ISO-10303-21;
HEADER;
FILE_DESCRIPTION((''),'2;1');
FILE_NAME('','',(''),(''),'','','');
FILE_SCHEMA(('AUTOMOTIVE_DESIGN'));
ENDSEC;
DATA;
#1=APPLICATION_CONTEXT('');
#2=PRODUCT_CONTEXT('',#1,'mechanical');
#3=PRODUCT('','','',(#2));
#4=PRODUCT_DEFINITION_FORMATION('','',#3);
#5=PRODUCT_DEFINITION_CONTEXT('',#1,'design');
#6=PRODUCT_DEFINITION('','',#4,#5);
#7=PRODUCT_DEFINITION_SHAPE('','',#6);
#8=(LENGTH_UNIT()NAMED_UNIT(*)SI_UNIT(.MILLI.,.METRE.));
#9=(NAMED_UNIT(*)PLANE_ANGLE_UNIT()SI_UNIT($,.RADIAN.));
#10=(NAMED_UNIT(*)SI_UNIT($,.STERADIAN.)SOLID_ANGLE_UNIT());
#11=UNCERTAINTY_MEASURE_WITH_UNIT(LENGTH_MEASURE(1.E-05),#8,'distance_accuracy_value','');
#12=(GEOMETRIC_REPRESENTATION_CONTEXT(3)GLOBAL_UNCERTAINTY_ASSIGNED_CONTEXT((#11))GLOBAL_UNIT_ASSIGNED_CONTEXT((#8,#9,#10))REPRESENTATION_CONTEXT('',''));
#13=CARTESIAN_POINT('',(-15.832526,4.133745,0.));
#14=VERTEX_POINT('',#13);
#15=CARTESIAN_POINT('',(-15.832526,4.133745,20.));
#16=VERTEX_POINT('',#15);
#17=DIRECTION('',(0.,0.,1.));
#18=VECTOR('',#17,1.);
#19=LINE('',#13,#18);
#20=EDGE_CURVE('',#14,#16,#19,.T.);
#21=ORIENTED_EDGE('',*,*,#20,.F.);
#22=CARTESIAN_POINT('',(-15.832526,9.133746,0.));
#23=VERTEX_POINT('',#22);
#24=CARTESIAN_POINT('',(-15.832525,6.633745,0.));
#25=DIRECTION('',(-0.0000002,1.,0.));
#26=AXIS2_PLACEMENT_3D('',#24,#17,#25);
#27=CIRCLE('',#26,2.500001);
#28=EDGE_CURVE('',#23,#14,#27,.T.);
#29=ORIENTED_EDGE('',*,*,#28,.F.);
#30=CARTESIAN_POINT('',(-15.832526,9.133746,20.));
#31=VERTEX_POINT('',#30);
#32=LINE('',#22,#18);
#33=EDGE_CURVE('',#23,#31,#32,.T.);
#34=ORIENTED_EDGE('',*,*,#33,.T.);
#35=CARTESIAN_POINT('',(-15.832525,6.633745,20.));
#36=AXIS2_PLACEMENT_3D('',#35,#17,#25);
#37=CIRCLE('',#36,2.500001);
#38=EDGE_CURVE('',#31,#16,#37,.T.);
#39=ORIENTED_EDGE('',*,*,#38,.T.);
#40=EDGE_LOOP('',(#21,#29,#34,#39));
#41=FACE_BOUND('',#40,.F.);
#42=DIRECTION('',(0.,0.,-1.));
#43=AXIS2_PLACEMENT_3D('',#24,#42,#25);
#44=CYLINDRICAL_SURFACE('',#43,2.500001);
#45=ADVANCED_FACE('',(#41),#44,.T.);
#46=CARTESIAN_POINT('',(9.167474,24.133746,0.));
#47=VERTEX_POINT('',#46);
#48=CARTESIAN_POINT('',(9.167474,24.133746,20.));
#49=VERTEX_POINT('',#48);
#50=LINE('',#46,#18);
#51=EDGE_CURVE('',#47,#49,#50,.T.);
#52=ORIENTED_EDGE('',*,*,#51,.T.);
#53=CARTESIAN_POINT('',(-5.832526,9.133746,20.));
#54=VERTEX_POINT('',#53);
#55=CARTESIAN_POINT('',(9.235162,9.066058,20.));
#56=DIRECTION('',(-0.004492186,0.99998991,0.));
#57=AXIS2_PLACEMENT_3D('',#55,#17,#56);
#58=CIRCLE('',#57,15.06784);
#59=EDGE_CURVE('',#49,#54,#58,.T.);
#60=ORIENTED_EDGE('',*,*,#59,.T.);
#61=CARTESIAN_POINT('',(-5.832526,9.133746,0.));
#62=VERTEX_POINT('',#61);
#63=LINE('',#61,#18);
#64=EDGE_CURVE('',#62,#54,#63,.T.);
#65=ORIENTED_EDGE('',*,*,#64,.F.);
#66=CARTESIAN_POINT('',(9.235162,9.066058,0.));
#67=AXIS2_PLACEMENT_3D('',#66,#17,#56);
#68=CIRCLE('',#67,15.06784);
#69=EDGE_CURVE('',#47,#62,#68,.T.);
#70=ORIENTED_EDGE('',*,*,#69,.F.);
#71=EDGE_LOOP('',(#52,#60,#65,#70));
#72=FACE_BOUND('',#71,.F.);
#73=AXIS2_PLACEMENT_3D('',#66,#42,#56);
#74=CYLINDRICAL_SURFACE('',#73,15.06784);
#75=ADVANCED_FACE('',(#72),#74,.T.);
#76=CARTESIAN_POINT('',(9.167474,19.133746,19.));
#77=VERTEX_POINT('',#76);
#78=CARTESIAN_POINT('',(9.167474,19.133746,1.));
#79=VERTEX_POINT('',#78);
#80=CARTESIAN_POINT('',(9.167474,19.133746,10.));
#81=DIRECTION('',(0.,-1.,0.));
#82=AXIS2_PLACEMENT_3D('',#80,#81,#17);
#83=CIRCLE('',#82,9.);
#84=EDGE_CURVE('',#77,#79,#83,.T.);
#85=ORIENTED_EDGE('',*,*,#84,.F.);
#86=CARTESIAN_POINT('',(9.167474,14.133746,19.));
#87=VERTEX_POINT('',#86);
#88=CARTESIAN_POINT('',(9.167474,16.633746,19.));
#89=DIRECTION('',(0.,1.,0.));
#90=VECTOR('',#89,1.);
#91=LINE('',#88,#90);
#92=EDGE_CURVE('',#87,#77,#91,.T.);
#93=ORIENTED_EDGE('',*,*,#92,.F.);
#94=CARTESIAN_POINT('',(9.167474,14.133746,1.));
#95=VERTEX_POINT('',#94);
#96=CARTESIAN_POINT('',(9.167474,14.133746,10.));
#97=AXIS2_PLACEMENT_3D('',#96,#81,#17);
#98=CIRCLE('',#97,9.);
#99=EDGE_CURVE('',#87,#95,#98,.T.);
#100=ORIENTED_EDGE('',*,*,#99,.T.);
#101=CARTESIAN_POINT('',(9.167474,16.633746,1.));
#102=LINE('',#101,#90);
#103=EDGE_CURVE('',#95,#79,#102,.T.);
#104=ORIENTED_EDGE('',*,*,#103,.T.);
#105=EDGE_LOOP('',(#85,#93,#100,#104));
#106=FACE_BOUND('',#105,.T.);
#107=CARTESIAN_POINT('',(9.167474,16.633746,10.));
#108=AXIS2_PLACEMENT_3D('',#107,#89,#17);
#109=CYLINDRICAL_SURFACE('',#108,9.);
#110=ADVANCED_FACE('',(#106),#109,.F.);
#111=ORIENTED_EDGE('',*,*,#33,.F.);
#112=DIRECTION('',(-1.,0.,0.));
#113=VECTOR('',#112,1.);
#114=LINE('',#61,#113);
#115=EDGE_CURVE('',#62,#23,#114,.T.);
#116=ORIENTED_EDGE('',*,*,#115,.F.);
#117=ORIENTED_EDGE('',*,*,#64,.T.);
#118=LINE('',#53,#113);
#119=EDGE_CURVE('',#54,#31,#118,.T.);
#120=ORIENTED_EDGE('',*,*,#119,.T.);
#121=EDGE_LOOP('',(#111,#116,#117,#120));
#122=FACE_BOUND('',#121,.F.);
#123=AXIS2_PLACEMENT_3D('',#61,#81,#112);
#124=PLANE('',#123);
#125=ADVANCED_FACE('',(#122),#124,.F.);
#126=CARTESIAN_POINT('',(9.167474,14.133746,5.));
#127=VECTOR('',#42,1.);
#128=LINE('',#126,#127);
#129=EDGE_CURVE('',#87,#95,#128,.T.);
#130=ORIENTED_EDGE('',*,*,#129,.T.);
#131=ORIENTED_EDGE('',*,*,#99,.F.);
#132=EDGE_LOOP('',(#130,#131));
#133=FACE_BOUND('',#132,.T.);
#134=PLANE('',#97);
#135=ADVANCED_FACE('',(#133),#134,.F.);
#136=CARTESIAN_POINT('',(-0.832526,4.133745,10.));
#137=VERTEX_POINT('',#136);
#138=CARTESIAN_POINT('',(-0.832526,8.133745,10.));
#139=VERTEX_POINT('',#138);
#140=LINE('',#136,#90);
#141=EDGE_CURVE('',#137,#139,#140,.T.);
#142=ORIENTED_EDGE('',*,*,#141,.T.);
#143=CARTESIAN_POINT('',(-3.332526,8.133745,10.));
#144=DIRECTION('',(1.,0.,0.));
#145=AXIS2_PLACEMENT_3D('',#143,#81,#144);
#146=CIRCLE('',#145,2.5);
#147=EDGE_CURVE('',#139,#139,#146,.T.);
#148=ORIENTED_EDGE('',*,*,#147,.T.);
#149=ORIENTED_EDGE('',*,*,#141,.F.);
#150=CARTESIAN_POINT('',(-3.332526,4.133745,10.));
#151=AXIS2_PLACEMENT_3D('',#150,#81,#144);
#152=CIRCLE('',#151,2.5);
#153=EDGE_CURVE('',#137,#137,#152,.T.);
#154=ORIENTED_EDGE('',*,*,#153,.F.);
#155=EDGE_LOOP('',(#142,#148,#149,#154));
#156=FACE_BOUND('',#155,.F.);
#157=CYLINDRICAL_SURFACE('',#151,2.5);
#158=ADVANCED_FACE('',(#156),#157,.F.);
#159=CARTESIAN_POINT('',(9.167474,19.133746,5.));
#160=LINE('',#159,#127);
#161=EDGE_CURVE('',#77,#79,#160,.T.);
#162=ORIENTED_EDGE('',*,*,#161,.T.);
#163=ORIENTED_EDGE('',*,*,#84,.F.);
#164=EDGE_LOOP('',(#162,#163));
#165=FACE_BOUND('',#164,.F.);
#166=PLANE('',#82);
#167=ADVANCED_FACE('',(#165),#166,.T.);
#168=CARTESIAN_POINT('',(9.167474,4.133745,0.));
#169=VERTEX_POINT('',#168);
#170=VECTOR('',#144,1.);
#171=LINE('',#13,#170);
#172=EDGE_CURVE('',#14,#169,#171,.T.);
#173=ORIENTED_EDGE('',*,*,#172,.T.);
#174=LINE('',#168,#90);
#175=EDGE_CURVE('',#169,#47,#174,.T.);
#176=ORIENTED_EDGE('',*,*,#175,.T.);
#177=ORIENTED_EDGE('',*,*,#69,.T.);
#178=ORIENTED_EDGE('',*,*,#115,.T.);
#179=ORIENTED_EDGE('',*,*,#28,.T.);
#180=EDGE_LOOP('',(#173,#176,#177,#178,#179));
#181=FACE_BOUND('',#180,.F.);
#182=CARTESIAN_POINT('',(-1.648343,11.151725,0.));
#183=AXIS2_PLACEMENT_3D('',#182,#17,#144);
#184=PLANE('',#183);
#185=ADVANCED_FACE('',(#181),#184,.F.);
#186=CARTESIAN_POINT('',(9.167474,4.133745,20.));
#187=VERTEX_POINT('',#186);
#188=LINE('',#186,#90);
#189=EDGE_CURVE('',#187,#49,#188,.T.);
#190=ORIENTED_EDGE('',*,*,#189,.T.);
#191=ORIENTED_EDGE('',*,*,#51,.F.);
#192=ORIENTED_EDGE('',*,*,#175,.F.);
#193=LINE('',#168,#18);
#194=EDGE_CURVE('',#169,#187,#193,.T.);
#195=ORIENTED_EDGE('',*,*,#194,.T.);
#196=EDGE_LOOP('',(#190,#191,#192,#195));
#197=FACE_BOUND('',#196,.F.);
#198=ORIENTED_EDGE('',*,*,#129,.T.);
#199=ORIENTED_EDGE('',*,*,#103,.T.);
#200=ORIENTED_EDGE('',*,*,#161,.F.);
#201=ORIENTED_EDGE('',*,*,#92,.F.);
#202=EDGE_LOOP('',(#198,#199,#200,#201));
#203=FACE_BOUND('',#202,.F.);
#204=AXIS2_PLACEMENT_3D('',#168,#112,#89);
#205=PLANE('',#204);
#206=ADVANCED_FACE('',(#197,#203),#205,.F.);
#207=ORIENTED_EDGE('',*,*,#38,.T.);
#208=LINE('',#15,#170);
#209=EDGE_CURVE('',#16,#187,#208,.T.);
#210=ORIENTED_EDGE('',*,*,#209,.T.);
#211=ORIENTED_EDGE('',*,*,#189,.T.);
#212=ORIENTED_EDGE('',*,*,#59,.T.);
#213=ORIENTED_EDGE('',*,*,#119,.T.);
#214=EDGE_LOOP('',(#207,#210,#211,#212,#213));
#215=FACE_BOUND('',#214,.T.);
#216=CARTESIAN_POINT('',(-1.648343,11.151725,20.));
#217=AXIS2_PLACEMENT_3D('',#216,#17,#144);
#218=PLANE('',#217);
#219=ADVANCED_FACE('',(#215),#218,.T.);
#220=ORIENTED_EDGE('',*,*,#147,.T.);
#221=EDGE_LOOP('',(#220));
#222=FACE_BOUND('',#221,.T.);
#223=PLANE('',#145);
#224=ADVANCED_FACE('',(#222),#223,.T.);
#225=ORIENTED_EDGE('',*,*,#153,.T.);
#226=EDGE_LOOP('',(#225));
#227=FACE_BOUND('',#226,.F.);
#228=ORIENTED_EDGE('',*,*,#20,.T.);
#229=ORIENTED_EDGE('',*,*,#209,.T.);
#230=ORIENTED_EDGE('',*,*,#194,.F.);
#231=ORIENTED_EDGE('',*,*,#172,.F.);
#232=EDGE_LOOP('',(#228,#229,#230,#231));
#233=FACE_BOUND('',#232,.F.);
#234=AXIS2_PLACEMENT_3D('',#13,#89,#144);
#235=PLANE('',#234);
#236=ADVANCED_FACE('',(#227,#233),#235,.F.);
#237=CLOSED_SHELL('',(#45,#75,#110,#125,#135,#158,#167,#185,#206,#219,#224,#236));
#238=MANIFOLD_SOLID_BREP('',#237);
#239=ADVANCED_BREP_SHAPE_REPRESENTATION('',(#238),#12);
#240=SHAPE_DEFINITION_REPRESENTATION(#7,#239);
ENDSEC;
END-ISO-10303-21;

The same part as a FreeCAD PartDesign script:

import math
import FreeCAD as App
import Part
import Sketcher

V = App.Vector


def add_polygon(sketch, points):
    """Adds a closed chain of lines whose ends are joined by coincident constraints."""
    first, n = sketch.GeometryCount, len(points)
    for a, b in zip(points, points[1:] + points[:1]):
        sketch.addGeometry(Part.LineSegment(App.Vector(*a, 0), App.Vector(*b, 0)), False)
    for i in range(n):
        sketch.addConstraint(Sketcher.Constraint("Coincident", first + i, 2, first + (i + 1) % n, 1))

doc = App.newDocument("Part")
body = doc.addObject("PartDesign::Body", "Body")

# Sketch on XY plane
sketch1 = body.newObject("Sketcher::SketchObject", "Sketch")
sketch1.AttachmentSupport = (doc.getObject("XY_Plane"), [""])
sketch1.MapMode = "FlatFace"
sketch1.addGeometry([
    Part.ArcOfCircle(Part.Circle(V(-15.832525, 6.633745, 0), V(0, 0, 1), 2.500001), math.radians(90.000011), math.radians(269.999989)),  # 0
    Part.LineSegment(V(-15.832526, 4.133745, 0), V(9.167474, 4.133745, 0)),  # 1
    Part.LineSegment(V(9.167474, 4.133745, 0), V(9.167474, 24.133746, 0)),  # 2
    Part.ArcOfCircle(Part.Circle(V(9.235162, 9.066058, 0), V(0, 0, 1), 15.06784), math.radians(90.257384), math.radians(179.742616)),  # 3
    Part.LineSegment(V(-5.832526, 9.133746, 0), V(-15.832526, 9.133746, 0)),  # 4
], False)
sketch1.addConstraint([
    Sketcher.Constraint("Tangent", 0, 2, 1, 1),
    Sketcher.Constraint("Coincident", 1, 2, 2, 1),
    Sketcher.Constraint("Coincident", 2, 2, 3, 1),
    Sketcher.Constraint("Coincident", 3, 2, 4, 1),
    Sketcher.Constraint("Tangent", 4, 2, 0, 1),
    Sketcher.Constraint("Horizontal", 1),
    Sketcher.Constraint("Vertical", 2),
    Sketcher.Constraint("Horizontal", 4),
    Sketcher.Constraint("Radius", 0, 2.500001),
    Sketcher.Constraint("DistanceX", 1, 1, 1, 2, 25.0),
    Sketcher.Constraint("DistanceX", 4, 2, 4, 1, 10.0),
    Sketcher.Constraint("DistanceY", 2, 1, 2, 2, 20.000001),
    Sketcher.Constraint("Radius", 3, 15.06784),
    Sketcher.Constraint("DistanceX", -1, 1, 3, 3, 9.235162),
    Sketcher.Constraint("DistanceY", -1, 1, 3, 3, 9.066058),
])
pad1 = body.newObject("PartDesign::Pad", "Pad")
pad1.Profile = sketch1
pad1.Length = 20

# Sketch on YZ plane
sketch2 = body.newObject("Sketcher::SketchObject", "Sketch001")
sketch2.AttachmentSupport = (doc.getObject("YZ_Plane"), [""])
sketch2.MapMode = "FlatFace"
sketch2.AttachmentOffset = App.Placement(V(0, 0, 9.167474), App.Rotation())
add_polygon(sketch2, [(14.133746, 19), (14.133746, 10), (19.133746, 10), (19.133746, 19)])  # lines 0-3
sketch2.addGeometry(Part.LineSegment(V(19.133746, 10, 0), V(14.133746, 10, 0)), True)  # axis
sketch2.addConstraint([
    Sketcher.Constraint("Vertical", 0),
    Sketcher.Constraint("Horizontal", 1),
    Sketcher.Constraint("Vertical", 2),
    Sketcher.Constraint("Horizontal", 3),
    Sketcher.Constraint("Horizontal", 4),
    Sketcher.Constraint("Coincident", 4, 1, 1, 2),
    Sketcher.Constraint("Vertical", 3, 2, 4, 2),
    Sketcher.Constraint("DistanceX", 1, 1, 1, 2, 5.0),
    Sketcher.Constraint("DistanceY", 0, 2, 0, 1, 9.0),
    Sketcher.Constraint("DistanceY", -1, 1, 0, 2, 10.0),
    Sketcher.Constraint("DistanceX", -1, 1, 0, 2, 14.133746),
])
groove = body.newObject("PartDesign::Groove", "Groove")
groove.Profile = sketch2
groove.ReferenceAxis = (sketch2, ["Axis0"])
groove.Angle = 360

# Sketch on XZ plane
sketch3 = body.newObject("Sketcher::SketchObject", "Sketch002")
sketch3.AttachmentSupport = (doc.getObject("XZ_Plane"), [""])
sketch3.MapMode = "FlatFace"
sketch3.AttachmentOffset = App.Placement(V(0, 0, -4.133745), App.Rotation())
sketch3.addGeometry(Part.Circle(V(-3.332526, 10, 0), V(0, 0, 1), 2.5), False)
sketch3.addConstraint([
    Sketcher.Constraint("Diameter", 0, 5.0),
    Sketcher.Constraint("DistanceY", -1, 1, 0, 3, 10.0),
    Sketcher.Constraint("DistanceX", 0, 3, -1, 1, 3.332526),
])
pocket1 = body.newObject("PartDesign::Pocket", "Pocket")
pocket1.Profile = sketch3
pocket1.Length = 4

doc.recompute()
